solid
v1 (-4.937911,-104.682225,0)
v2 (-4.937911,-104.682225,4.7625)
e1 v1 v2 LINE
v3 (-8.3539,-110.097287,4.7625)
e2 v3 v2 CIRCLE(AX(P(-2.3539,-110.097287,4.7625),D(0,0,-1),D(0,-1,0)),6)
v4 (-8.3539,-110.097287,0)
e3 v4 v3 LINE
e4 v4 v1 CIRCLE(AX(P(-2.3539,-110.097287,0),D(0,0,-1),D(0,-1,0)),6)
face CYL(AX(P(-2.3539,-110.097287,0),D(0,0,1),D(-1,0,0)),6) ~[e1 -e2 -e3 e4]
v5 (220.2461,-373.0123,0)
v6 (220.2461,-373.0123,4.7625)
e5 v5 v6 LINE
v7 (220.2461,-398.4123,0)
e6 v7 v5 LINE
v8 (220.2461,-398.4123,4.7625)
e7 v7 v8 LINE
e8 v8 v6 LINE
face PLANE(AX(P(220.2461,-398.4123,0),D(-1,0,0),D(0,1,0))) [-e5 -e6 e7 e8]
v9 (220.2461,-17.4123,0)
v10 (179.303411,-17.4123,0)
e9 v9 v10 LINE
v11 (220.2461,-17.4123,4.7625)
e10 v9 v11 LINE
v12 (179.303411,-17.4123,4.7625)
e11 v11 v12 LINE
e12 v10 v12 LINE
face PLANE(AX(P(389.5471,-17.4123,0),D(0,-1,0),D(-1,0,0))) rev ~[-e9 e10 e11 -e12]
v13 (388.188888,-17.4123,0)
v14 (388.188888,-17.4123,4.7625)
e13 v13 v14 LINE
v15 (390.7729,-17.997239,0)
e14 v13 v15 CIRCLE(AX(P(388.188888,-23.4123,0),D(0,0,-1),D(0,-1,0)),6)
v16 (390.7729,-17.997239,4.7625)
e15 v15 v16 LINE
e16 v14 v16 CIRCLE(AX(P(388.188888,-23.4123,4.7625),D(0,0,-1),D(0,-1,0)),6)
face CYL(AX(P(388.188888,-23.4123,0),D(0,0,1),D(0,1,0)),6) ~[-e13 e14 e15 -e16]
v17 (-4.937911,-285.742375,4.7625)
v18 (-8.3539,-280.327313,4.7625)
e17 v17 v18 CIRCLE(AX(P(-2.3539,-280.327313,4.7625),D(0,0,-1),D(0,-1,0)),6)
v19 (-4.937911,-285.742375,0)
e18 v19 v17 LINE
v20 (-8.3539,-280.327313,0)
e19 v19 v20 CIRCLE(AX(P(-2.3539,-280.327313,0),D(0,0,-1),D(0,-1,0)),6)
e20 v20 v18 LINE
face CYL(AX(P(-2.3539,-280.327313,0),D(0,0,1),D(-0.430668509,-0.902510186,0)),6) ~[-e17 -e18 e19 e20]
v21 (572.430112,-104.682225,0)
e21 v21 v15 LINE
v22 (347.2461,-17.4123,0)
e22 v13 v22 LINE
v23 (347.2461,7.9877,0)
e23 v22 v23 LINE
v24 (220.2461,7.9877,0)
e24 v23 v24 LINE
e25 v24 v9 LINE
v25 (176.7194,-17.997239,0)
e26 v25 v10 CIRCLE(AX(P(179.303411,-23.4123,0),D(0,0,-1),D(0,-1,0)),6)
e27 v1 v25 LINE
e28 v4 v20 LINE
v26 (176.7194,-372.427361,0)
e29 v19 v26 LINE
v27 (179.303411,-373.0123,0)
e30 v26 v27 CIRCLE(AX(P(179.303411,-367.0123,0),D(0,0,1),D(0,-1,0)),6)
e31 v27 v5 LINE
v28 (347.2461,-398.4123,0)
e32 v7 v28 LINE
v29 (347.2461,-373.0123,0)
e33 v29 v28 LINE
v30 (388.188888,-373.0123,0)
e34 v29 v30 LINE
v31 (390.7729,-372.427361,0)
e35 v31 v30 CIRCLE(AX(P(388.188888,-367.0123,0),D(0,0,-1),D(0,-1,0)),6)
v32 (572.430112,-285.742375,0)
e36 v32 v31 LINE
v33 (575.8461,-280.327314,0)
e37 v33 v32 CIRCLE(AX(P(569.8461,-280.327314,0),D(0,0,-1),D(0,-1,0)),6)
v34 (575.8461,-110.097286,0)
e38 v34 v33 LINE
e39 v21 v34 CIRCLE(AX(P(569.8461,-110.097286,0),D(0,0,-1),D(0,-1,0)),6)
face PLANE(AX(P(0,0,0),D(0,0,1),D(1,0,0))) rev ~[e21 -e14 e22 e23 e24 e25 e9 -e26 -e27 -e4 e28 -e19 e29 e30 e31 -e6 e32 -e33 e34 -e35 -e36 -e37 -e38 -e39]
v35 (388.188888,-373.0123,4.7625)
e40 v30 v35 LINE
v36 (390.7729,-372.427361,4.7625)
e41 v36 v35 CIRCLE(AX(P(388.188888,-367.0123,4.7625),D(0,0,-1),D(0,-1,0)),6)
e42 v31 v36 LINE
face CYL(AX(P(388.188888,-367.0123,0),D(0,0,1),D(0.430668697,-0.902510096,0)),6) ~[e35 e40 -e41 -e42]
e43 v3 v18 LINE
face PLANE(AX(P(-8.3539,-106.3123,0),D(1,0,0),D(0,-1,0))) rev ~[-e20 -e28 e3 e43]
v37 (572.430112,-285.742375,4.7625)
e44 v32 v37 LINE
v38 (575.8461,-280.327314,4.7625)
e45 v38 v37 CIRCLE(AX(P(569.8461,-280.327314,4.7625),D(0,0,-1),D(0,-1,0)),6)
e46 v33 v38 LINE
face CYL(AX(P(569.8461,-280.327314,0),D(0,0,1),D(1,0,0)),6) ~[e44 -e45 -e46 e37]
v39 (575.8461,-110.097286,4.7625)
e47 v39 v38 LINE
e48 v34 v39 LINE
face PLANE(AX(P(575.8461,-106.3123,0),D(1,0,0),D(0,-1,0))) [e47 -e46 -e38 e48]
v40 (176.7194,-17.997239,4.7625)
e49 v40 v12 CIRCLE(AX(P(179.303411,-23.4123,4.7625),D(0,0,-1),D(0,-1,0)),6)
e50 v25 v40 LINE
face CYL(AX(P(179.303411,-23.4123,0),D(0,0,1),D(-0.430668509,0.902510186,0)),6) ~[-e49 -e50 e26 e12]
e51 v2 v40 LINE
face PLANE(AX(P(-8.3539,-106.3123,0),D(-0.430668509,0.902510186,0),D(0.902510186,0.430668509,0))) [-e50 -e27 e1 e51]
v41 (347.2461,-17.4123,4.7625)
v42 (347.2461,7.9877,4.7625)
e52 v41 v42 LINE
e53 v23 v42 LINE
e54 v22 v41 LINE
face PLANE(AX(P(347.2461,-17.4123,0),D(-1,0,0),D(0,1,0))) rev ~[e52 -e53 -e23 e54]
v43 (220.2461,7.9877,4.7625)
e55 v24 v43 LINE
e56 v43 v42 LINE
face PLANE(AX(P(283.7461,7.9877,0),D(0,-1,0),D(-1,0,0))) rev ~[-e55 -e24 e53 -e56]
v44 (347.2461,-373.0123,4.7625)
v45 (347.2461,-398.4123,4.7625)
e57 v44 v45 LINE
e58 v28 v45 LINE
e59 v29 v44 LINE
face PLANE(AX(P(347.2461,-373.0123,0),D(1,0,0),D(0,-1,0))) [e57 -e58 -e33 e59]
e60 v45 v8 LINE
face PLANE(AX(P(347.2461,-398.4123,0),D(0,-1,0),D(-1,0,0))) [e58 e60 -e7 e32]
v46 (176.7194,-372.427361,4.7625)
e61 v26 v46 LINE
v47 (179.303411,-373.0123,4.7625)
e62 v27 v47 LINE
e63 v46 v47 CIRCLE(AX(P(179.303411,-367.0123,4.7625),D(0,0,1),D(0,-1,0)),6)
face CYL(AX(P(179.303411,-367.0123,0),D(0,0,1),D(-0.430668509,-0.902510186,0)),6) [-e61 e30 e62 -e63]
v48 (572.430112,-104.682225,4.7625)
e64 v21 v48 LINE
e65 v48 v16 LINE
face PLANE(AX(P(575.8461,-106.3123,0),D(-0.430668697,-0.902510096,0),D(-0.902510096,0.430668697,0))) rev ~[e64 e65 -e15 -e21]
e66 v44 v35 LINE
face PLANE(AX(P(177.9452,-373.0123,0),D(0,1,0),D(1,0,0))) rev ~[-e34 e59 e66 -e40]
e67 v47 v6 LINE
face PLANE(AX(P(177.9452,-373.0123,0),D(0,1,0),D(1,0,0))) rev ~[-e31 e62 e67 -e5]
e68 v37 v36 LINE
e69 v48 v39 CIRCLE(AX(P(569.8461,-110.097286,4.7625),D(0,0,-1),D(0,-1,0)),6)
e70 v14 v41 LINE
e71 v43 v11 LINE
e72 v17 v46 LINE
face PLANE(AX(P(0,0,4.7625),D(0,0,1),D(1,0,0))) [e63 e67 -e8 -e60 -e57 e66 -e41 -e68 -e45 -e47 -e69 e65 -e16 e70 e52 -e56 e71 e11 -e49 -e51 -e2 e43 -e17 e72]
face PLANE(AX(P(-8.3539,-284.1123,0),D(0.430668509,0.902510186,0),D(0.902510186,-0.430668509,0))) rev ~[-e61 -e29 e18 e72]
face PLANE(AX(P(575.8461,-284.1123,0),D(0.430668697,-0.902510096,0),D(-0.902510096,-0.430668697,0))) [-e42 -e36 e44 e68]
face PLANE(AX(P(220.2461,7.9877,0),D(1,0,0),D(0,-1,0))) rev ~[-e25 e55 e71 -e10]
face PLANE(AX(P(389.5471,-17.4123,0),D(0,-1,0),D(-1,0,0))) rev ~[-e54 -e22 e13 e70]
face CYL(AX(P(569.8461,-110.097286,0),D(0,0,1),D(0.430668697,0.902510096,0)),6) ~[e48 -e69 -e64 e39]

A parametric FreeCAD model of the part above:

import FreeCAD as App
import Part
import Sketcher

V = App.Vector
Q = App.Units.Quantity


def edges_at(feature, points):
    """Names of the edges that pass closest to the given points."""
    edges = feature.Shape.Edges
    near = lambda p: min(range(len(edges)), key=lambda i: edges[i].distToShape(Part.Vertex(*p))[0])
    return sorted({f"Edge{near(p) + 1}" for p in points})


def add_polygon(sketch, points):
    """Adds a closed chain of lines whose ends are joined by coincident constraints."""
    first, n = sketch.GeometryCount, len(points)
    for a, b in zip(points, points[1:] + points[:1]):
        sketch.addGeometry(Part.LineSegment(App.Vector(*a, 0), App.Vector(*b, 0)), False)
    for i in range(n):
        sketch.addConstraint(Sketcher.Constraint("Coincident", first + i, 2, first + (i + 1) % n, 1))

doc = App.newDocument("Part")
body = doc.addObject("PartDesign::Body", "Body")

sketch1 = doc.addObject("Sketcher::SketchObject", "Sketch")
body.addObject(sketch1)
sketch1.AttachmentSupport = (doc.XY_Plane, [""])
sketch1.MapMode = "FlatFace"
add_polygon(sketch1, [(-8.3539, -284.1123), (177.9452, -373.0123), (389.5471, -373.0123), (575.8461, -284.1123), (575.8461, -106.3123), (389.5471, -17.4123), (177.9452, -17.4123), (-8.3539, -106.3123)])
sketch1.addConstraint([
    Sketcher.Constraint("Horizontal", 1),
    Sketcher.Constraint("Vertical", 3),
    Sketcher.Constraint("Horizontal", 5),
    Sketcher.Constraint("Vertical", 7),
    Sketcher.Constraint("Parallel", 0, 4),
    Sketcher.Constraint("Parallel", 2, 6),
    Sketcher.Constraint("Horizontal", 3, 2, 6, 2),
    Sketcher.Constraint("Horizontal", 2, 2, 7, 2),
    Sketcher.Constraint("Vertical", 1, 2, 4, 2),
    Sketcher.Constraint("Vertical", 0, 2, 5, 2),
    Sketcher.Constraint("DistanceY", 1, 2, 4, 2, Q("14 in")),
    Sketcher.Constraint("DistanceX", 6, 2, 3, 2, Q("23 in")),
    Sketcher.Constraint("DistanceY", 1, 2, 2, 2, Q("3.5 in")),
    Sketcher.Constraint("Angle", 0, Q("-25.51 deg")),
    Sketcher.Constraint("DistanceX", -1, 1, 2, 2, Q("22.6711 in")),
    Sketcher.Constraint("DistanceY", 0, 2, -1, 1, Q("373.0123 mm")),
])
pad1 = doc.addObject("PartDesign::Pad", "Pad")
body.addObject(pad1)
pad1.Profile = sketch1
pad1.Length = Q("0.1875 in")

sketch2 = doc.addObject("Sketcher::SketchObject", "Sketch001")
body.addObject(sketch2)
sketch2.AttachmentSupport = (doc.XY_Plane, [""])
sketch2.MapMode = "FlatFace"
add_polygon(sketch2, [(347.2461, -373.0123), (220.2461, -373.0123), (220.2461, -398.4123), (347.2461, -398.4123)])
add_polygon(sketch2, [(220.2461, -17.4123), (347.2461, -17.4123), (347.2461, 7.9877), (220.2461, 7.9877)])
sketch2.addConstraint([
    Sketcher.Constraint("Horizontal", 0),
    Sketcher.Constraint("Vertical", 1),
    Sketcher.Constraint("Horizontal", 2),
    Sketcher.Constraint("Vertical", 3),
    Sketcher.Constraint("Horizontal", 4),
    Sketcher.Constraint("Vertical", 5),
    Sketcher.Constraint("Horizontal", 6),
    Sketcher.Constraint("Vertical", 7),
    Sketcher.Constraint("Vertical", 3, 2, 4, 2),
    Sketcher.Constraint("Vertical", 1, 2, 6, 2),
    Sketcher.Constraint("Equal", 3, 5),
    Sketcher.Constraint("DistanceX", 0, 2, 0, 1, Q("5 in")),
    Sketcher.Constraint("DistanceY", 1, 2, 1, 1, Q("1 in")),
    Sketcher.Constraint("DistanceY", 3, 2, 4, 2, Q("14 in")),
    Sketcher.Constraint("DistanceX", -1, 1, 0, 2, Q("8.6711 in")),
    Sketcher.Constraint("DistanceY", 0, 2, -1, 1, Q("373.0123 mm")),
])
pad2 = doc.addObject("PartDesign::Pad", "Pad001")
body.addObject(pad2)
pad2.Profile = sketch2
pad2.Length = Q("0.1875 in")
doc.recompute()

fillet = doc.addObject("PartDesign::Fillet", "Fillet")
body.addObject(fillet)
fillet.Base = (pad2, edges_at(pad2, [
    (-8.354, -106.312, 2.381),
    (-8.354, -284.112, 2.381),
    (177.945, -373.012, 2.381),
    (389.547, -373.012, 2.381),
    (575.846, -284.112, 2.381),
    (575.846, -106.312, 2.381),
    (389.547, -17.412, 2.381),
    (177.945, -17.412, 2.381),
]))
fillet.Radius = 6

doc.recompute()
